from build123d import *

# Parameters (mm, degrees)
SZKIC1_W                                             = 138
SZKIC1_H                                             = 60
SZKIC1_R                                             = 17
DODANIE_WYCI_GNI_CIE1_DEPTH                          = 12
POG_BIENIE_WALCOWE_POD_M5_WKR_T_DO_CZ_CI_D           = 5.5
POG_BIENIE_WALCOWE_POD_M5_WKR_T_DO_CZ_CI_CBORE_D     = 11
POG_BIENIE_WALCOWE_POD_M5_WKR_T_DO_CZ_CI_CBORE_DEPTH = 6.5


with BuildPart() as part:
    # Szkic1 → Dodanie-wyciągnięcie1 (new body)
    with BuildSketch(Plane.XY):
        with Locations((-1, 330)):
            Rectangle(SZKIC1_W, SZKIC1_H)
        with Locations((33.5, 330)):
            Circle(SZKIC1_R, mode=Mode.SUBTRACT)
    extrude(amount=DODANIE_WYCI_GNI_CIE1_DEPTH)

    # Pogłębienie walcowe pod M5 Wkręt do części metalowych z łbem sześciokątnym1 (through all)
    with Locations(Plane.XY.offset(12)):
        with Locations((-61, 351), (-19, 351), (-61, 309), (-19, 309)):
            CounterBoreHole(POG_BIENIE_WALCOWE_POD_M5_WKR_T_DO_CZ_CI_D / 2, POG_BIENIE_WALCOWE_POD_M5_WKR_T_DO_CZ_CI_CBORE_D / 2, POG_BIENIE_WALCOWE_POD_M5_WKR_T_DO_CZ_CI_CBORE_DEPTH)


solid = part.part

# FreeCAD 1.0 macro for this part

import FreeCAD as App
import Part
import Sketcher
Q = App.Units.Quantity

doc = App.newDocument("Part")
body = doc.addObject("PartDesign::Body", "Body")

# Sketch on XY plane
sketch1 = doc.addObject("Sketcher::SketchObject", "Sketch")
body.addObject(sketch1)
sketch1.AttachmentSupport = (doc.XY_Plane, [""])
sketch1.MapMode = "FlatFace"
sketch1.addGeometry(Part.LineSegment(App.Vector(-70, 360, 0), App.Vector(-70, 300, 0)), False)
sketch1.addGeometry(Part.LineSegment(App.Vector(-70, 300, 0), App.Vector(68, 300, 0)), False)
sketch1.addGeometry(Part.LineSegment(App.Vector(68, 300, 0), App.Vector(68, 360, 0)), False)
sketch1.addGeometry(Part.LineSegment(App.Vector(68, 360, 0), App.Vector(-70, 360, 0)), False)
sketch1.addGeometry(Part.Circle(App.Vector(34, 330, 0), App.Vector(0, 0, 1), 17), False)
sketch1.addConstraint(Sketcher.Constraint("Coincident", 0, 2, 1, 1))
sketch1.addConstraint(Sketcher.Constraint("Coincident", 1, 2, 2, 1))
sketch1.addConstraint(Sketcher.Constraint("Coincident", 2, 2, 3, 1))
sketch1.addConstraint(Sketcher.Constraint("Coincident", 3, 2, 0, 1))
sketch1.addConstraint(Sketcher.Constraint("Vertical", 0))
sketch1.addConstraint(Sketcher.Constraint("Horizontal", 1))
sketch1.addConstraint(Sketcher.Constraint("Vertical", 2))
sketch1.addConstraint(Sketcher.Constraint("Horizontal", 3))
sketch1.addConstraint(Sketcher.Constraint("Diameter", 4, Q("34 mm")))
sketch1.addConstraint(Sketcher.Constraint("DistanceX", 1, 1, 1, 2, Q("138 mm")))
sketch1.addConstraint(Sketcher.Constraint("DistanceY", 0, 2, 0, 1, Q("60 mm")))
sketch1.addConstraint(Sketcher.Constraint("DistanceY", -1, 1, 4, 3, Q("330 mm")))
sketch1.addConstraint(Sketcher.Constraint("DistanceX", 0, 2, -1, 1, Q("70 mm")))
sketch1.addConstraint(Sketcher.Constraint("DistanceY", -1, 1, 0, 2, Q("300 mm")))
sketch1.addConstraint(Sketcher.Constraint("DistanceX", -1, 1, 4, 3, Q("33.5 mm")))
pad1 = doc.addObject("PartDesign::Pad", "Pad")
body.addObject(pad1)
pad1.Profile = sketch1
pad1.Length = 12

# Sketch on XY plane
sketch2 = doc.addObject("Sketcher::SketchObject", "Sketch001")
body.addObject(sketch2)
sketch2.AttachmentSupport = (doc.XY_Plane, [""])
sketch2.MapMode = "FlatFace"
sketch2.AttachmentOffset = App.Placement(App.Vector(0, 0, 12), App.Rotation())
sketch2.addGeometry(Part.Circle(App.Vector(-61, 351, 0), App.Vector(0, 0, 1), 2.8), False)
sketch2.addGeometry(Part.Circle(App.Vector(-19, 351, 0), App.Vector(0, 0, 1), 2.8), False)
sketch2.addGeometry(Part.Circle(App.Vector(-61, 309, 0), App.Vector(0, 0, 1), 2.8), False)
sketch2.addGeometry(Part.Circle(App.Vector(-19, 309, 0), App.Vector(0, 0, 1), 2.8), False)
sketch2.addConstraint(Sketcher.Constraint("Equal", 0, 1))
sketch2.addConstraint(Sketcher.Constraint("Equal", 1, 2))
sketch2.addConstraint(Sketcher.Constraint("Equal", 2, 3))
sketch2.addConstraint(Sketcher.Constraint("Horizontal", 0, 3, 1, 3))
sketch2.addConstraint(Sketcher.Constraint("Horizontal", 2, 3, 3, 3))
sketch2.addConstraint(Sketcher.Constraint("Vertical", 0, 3, 2, 3))
sketch2.addConstraint(Sketcher.Constraint("Vertical", 1, 3, 3, 3))
sketch2.addConstraint(Sketcher.Constraint("Diameter", 0, Q("5.5 mm")))
sketch2.addConstraint(Sketcher.Constraint("DistanceX", 0, 3, -1, 1, Q("61 mm")))
sketch2.addConstraint(Sketcher.Constraint("DistanceY", -1, 1, 0, 3, Q("351 mm")))
sketch2.addConstraint(Sketcher.Constraint("DistanceX", 1, 3, -1, 1, Q("19 mm")))
sketch2.addConstraint(Sketcher.Constraint("DistanceY", -1, 1, 2, 3, Q("309 mm")))
doc.recompute()
hole = doc.addObject("PartDesign::Hole", "Hole")
body.addObject(hole)
hole.Profile = sketch2
hole.ThreadType = "None"
hole.Diameter = 5.5
hole.DepthType = "ThroughAll"
hole.HoleCutType = "Counterbore"
hole.HoleCutDiameter = 11
hole.HoleCutDepth = 6.5

doc.recompute()
